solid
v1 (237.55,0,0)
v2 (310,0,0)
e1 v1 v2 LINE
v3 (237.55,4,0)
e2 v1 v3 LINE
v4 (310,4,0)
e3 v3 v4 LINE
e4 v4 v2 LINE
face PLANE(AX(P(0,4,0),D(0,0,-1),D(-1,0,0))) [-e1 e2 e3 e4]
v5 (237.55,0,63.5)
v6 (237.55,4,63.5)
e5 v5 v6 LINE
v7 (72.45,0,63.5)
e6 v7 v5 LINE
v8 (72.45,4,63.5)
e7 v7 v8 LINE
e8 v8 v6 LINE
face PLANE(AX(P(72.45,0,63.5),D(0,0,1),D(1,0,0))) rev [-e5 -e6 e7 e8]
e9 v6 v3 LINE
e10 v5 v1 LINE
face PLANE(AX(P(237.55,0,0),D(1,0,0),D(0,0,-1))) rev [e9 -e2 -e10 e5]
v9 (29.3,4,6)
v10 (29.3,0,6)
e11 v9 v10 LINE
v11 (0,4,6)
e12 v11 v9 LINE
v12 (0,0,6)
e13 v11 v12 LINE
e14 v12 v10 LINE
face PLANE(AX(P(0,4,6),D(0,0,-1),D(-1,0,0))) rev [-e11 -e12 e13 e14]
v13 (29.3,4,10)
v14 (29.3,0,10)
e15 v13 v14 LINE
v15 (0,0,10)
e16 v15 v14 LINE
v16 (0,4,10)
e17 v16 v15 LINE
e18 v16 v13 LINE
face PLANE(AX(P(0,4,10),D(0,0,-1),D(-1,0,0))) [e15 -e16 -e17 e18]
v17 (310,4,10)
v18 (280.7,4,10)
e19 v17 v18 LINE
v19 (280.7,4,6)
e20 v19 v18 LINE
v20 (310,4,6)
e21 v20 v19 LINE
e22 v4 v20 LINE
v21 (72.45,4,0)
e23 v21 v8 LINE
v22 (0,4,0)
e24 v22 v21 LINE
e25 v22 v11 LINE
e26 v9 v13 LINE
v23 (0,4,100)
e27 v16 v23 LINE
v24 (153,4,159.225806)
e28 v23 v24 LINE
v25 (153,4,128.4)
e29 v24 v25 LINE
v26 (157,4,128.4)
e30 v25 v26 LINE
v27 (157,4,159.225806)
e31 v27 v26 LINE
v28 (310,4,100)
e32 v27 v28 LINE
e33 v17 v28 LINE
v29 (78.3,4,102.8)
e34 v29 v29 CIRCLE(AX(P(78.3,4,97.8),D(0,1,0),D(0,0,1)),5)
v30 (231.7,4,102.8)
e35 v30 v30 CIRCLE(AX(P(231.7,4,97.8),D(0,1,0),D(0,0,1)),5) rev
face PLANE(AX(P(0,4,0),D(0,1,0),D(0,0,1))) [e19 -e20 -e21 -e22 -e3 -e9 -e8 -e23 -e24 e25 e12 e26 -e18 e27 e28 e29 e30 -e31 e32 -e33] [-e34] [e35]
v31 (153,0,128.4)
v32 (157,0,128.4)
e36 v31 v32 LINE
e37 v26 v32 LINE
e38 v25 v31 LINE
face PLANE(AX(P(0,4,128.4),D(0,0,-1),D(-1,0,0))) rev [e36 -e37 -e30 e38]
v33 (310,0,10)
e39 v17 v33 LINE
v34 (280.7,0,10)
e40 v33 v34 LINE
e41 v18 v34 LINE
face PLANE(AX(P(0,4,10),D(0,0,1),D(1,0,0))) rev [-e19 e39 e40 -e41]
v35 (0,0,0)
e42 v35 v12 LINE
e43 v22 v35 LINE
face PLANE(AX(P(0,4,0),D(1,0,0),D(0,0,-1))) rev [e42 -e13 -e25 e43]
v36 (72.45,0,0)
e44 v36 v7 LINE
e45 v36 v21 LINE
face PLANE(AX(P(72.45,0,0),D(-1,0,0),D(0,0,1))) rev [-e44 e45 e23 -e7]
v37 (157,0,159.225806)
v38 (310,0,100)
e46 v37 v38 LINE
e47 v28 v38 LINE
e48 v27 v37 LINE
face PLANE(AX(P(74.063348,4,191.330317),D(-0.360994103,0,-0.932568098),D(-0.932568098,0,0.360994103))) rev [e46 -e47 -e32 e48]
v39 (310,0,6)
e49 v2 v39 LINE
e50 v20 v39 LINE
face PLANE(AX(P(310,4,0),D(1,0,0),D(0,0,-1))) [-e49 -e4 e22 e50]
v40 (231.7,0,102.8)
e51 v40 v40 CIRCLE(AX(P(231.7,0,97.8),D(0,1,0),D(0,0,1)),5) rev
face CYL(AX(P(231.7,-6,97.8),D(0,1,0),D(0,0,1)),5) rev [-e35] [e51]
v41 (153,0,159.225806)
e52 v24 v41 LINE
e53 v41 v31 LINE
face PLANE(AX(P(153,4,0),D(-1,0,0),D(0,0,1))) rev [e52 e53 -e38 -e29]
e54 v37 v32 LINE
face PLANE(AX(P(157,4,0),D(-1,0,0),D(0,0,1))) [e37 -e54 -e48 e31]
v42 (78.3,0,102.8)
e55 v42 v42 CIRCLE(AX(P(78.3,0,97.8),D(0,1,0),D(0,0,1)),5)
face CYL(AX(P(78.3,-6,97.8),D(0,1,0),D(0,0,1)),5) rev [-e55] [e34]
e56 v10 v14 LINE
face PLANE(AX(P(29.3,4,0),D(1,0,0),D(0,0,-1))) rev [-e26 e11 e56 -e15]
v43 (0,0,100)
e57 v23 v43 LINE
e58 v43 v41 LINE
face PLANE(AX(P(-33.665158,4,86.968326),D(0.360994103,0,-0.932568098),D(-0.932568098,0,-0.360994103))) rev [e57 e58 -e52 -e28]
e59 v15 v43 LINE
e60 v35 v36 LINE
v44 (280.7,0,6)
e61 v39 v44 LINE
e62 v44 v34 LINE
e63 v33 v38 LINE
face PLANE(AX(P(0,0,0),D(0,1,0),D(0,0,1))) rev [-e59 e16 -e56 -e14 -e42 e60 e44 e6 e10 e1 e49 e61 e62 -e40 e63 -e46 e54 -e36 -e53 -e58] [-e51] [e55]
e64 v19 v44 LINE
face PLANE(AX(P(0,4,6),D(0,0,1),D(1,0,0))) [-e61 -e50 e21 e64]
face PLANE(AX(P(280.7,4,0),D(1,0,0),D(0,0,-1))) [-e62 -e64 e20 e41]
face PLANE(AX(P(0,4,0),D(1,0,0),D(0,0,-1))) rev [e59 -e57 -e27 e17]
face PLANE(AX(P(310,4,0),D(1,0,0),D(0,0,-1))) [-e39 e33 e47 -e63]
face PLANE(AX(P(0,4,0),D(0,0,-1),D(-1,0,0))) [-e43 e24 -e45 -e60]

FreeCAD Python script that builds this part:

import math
import FreeCAD as App
import Part
import Sketcher
from FreeCAD import Vector
Q = App.Units.Quantity

doc = App.newDocument("Part")
params = doc.addObject("Spreadsheet::Sheet", "Params")
for row, (alias, value) in enumerate([
    ("sketch1_width", "310 mm"),
    ("sketch1_width2", "4 mm"),
    ("sketch1_height", "90 mm"),
    ("sketch1_height2", "6 mm"),
    ("sketch1_width3", "29.3 mm"),
    ("pad1_length", "4 mm"),
    ("sketch2_width", "165.1 mm"),
    ("sketch2_height", "63.5 mm"),
    ("sketch3_radius", "5 mm"),
    ("pocket2_length", "10 mm"),
], start=1):
    params.set(f"A{row}", alias)
    params.set(f"B{row}", "=" + value)
    params.setAlias(f"B{row}", alias)

body = doc.addObject("PartDesign::Body", "Body")

# Sketch on XZ plane
sketch1 = doc.addObject("Sketcher::SketchObject", "Sketch")
body.addObject(sketch1)
sketch1.AttachmentSupport = (doc.XZ_Plane, [""])
sketch1.MapMode = "FlatFace"
sketch1.addGeometry(Part.LineSegment(Vector(310, 100, 0), Vector(310, 10, 0)), False)
sketch1.addGeometry(Part.LineSegment(Vector(310, 10, 0), Vector(280.7, 10, 0)), False)
sketch1.addGeometry(Part.LineSegment(Vector(280.7, 10, 0), Vector(280.7, 6, 0)), False)
sketch1.addGeometry(Part.LineSegment(Vector(280.7, 6, 0), Vector(310, 6, 0)), False)
sketch1.addGeometry(Part.LineSegment(Vector(310, 6, 0), Vector(310, 0, 0)), False)
sketch1.addGeometry(Part.LineSegment(Vector(310, 0, 0), Vector(0, 0, 0)), False)
sketch1.addGeometry(Part.LineSegment(Vector(0, 0, 0), Vector(0, 6, 0)), False)
sketch1.addGeometry(Part.LineSegment(Vector(0, 6, 0), Vector(29.3, 6, 0)), False)
sketch1.addGeometry(Part.LineSegment(Vector(29.3, 6, 0), Vector(29.3, 10, 0)), False)
sketch1.addGeometry(Part.LineSegment(Vector(29.3, 10, 0), Vector(0, 10, 0)), False)
sketch1.addGeometry(Part.LineSegment(Vector(0, 10, 0), Vector(0, 100, 0)), False)
sketch1.addGeometry(Part.LineSegment(Vector(0, 100, 0), Vector(153, 159.225806, 0)), False)
sketch1.addGeometry(Part.LineSegment(Vector(153, 159.225806, 0), Vector(153, 128.4, 0)), False)
sketch1.addGeometry(Part.LineSegment(Vector(153, 128.4, 0), Vector(157, 128.4, 0)), False)
sketch1.addGeometry(Part.LineSegment(Vector(157, 128.4, 0), Vector(157, 159.225806, 0)), False)
sketch1.addGeometry(Part.LineSegment(Vector(157, 159.225806, 0), Vector(310, 100, 0)), False)
sketch1.addConstraint(Sketcher.Constraint("Coincident", 0, 2, 1, 1))
sketch1.addConstraint(Sketcher.Constraint("Coincident", 1, 2, 2, 1))
sketch1.addConstraint(Sketcher.Constraint("Coincident", 2, 2, 3, 1))
sketch1.addConstraint(Sketcher.Constraint("Coincident", 3, 2, 4, 1))
sketch1.addConstraint(Sketcher.Constraint("Coincident", 4, 2, 5, 1))
sketch1.addConstraint(Sketcher.Constraint("Coincident", 5, 2, 6, 1))
sketch1.addConstraint(Sketcher.Constraint("Coincident", 6, 2, 7, 1))
sketch1.addConstraint(Sketcher.Constraint("Coincident", 7, 2, 8, 1))
sketch1.addConstraint(Sketcher.Constraint("Coincident", 8, 2, 9, 1))
sketch1.addConstraint(Sketcher.Constraint("Coincident", 9, 2, 10, 1))
sketch1.addConstraint(Sketcher.Constraint("Coincident", 10, 2, 11, 1))
sketch1.addConstraint(Sketcher.Constraint("Coincident", 11, 2, 12, 1))
sketch1.addConstraint(Sketcher.Constraint("Coincident", 12, 2, 13, 1))
sketch1.addConstraint(Sketcher.Constraint("Coincident", 13, 2, 14, 1))
sketch1.addConstraint(Sketcher.Constraint("Coincident", 14, 2, 15, 1))
sketch1.addConstraint(Sketcher.Constraint("Coincident", 15, 2, 0, 1))
sketch1.addConstraint(Sketcher.Constraint("Vertical", 0))
sketch1.addConstraint(Sketcher.Constraint("Horizontal", 1))
sketch1.addConstraint(Sketcher.Constraint("Vertical", 2))
sketch1.addConstraint(Sketcher.Constraint("Horizontal", 3))
sketch1.addConstraint(Sketcher.Constraint("Vertical", 4))
sketch1.addConstraint(Sketcher.Constraint("Horizontal", 5))
sketch1.addConstraint(Sketcher.Constraint("Vertical", 6))
sketch1.addConstraint(Sketcher.Constraint("Horizontal", 7))
sketch1.addConstraint(Sketcher.Constraint("Vertical", 8))
sketch1.addConstraint(Sketcher.Constraint("Horizontal", 9))
sketch1.addConstraint(Sketcher.Constraint("Vertical", 10))
sketch1.addConstraint(Sketcher.Constraint("Vertical", 12))
sketch1.addConstraint(Sketcher.Constraint("Horizontal", 13))
sketch1.addConstraint(Sketcher.Constraint("Vertical", 14))
sketch1.addConstraint(Sketcher.Constraint("Coincident", 5, 2, -1, 1))
sketch1.addConstraint(Sketcher.Constraint("PointOnObject", 9, 2, -2))
sketch1.addConstraint(Sketcher.Constraint("Horizontal", 3, 2, 6, 2))
sketch1.addConstraint(Sketcher.Constraint("Horizontal", 1, 2, 8, 2))
sketch1.addConstraint(Sketcher.Constraint("Horizontal", 11, 2, 14, 2))
sketch1.addConstraint(Sketcher.Constraint("Horizontal", 10, 2, 15, 2))
sketch1.addConstraint(Sketcher.Constraint("Vertical", 0, 2, 3, 2))
sketch1.addConstraint(Sketcher.Constraint("Equal", 3, 7))
sketch1.addConstraint(Sketcher.Constraint("Equal", 13, 2))
sketch1.addConstraint(Sketcher.Constraint("Equal", 11, 15))
sketch1.addConstraint(Sketcher.Constraint("DistanceX", 5, 2, 5, 1, Q("310 mm")))
sketch1.addConstraint(Sketcher.Constraint("DistanceX", 13, 1, 13, 2, Q("4 mm")))
sketch1.addConstraint(Sketcher.Constraint("DistanceY", 0, 2, 0, 1, Q("90 mm")))
sketch1.addConstraint(Sketcher.Constraint("DistanceY", 4, 2, 4, 1, Q("6 mm")))
sketch1.addConstraint(Sketcher.Constraint("DistanceX", 1, 2, 1, 1, Q("29.3 mm")))
sketch1.addConstraint(Sketcher.Constraint("DistanceY", -1, 1, 12, 2, Q("128.4 mm")))
sketch1.addConstraint(Sketcher.Constraint("DistanceY", 12, 2, 12, 1, Q("30.825806 mm")))
sketch1.setExpression("Constraints[40]", "Params.sketch1_width")
sketch1.setExpression("Constraints[41]", "Params.sketch1_width2")
sketch1.setExpression("Constraints[42]", "Params.sketch1_height")
sketch1.setExpression("Constraints[43]", "Params.sketch1_height2")
sketch1.setExpression("Constraints[44]", "Params.sketch1_width3")
pad1 = doc.addObject("PartDesign::Pad", "Pad")
body.addObject(pad1)
pad1.Profile = sketch1
pad1.setExpression("Length", "Params.pad1_length")
pad1.Reversed = True

# Sketch on XZ plane
sketch2 = doc.addObject("Sketcher::SketchObject", "Sketch001")
body.addObject(sketch2)
sketch2.AttachmentSupport = (doc.XZ_Plane, [""])
sketch2.MapMode = "FlatFace"
sketch2.AttachmentOffset = App.Placement(Vector(0, 0, -4), App.Rotation())
sketch2.addGeometry(Part.LineSegment(Vector(72.45, 0, 0), Vector(72.45, 63.5, 0)), False)
sketch2.addGeometry(Part.LineSegment(Vector(72.45, 63.5, 0), Vector(237.55, 63.5, 0)), False)
sketch2.addGeometry(Part.LineSegment(Vector(237.55, 63.5, 0), Vector(237.55, 0, 0)), False)
sketch2.addGeometry(Part.LineSegment(Vector(237.55, 0, 0), Vector(72.45, 0, 0)), False)
sketch2.addConstraint(Sketcher.Constraint("Coincident", 0, 2, 1, 1))
sketch2.addConstraint(Sketcher.Constraint("Coincident", 1, 2, 2, 1))
sketch2.addConstraint(Sketcher.Constraint("Coincident", 2, 2, 3, 1))
sketch2.addConstraint(Sketcher.Constraint("Coincident", 3, 2, 0, 1))
sketch2.addConstraint(Sketcher.Constraint("Vertical", 0))
sketch2.addConstraint(Sketcher.Constraint("Horizontal", 1))
sketch2.addConstraint(Sketcher.Constraint("Vertical", 2))
sketch2.addConstraint(Sketcher.Constraint("Horizontal", 3))
sketch2.addConstraint(Sketcher.Constraint("PointOnObject", 2, 2, -1))
sketch2.addConstraint(Sketcher.Constraint("DistanceX", 1, 1, 1, 2, Q("165.1 mm")))
sketch2.addConstraint(Sketcher.Constraint("DistanceY", 0, 1, 0, 2, Q("63.5 mm")))
sketch2.addConstraint(Sketcher.Constraint("DistanceX", -1, 1, 0, 2, Q("72.45 mm")))
sketch2.setExpression("Constraints[9]", "Params.sketch2_width")
sketch2.setExpression("Constraints[10]", "Params.sketch2_height")
pocket1 = doc.addObject("PartDesign::Pocket", "Pocket")
body.addObject(pocket1)
pocket1.Profile = sketch2
pocket1.Type = "ThroughAll"
pocket1.Reversed = True

# Sketch on XZ plane
sketch3 = doc.addObject("Sketcher::SketchObject", "Sketch002")
body.addObject(sketch3)
sketch3.AttachmentSupport = (doc.XZ_Plane, [""])
sketch3.MapMode = "FlatFace"
sketch3.AttachmentOffset = App.Placement(Vector(0, 0, -4), App.Rotation())
sketch3.addGeometry(Part.ArcOfCircle(Part.Circle(Vector(78.3, 97.8, 0), Vector(0, 0, 1), 5), math.radians(153.896119), math.radians(180)), False)
sketch3.addGeometry(Part.ArcOfCircle(Part.Circle(Vector(78.3, 97.8, 0), Vector(0, 0, 1), 5), math.radians(0), math.radians(153.896119)), False)
sketch3.addGeometry(Part.ArcOfCircle(Part.Circle(Vector(78.3, 97.8, 0), Vector(0, 0, 1), 5), math.radians(180), math.radians(360)), False)
sketch3.addGeometry(Part.ArcOfCircle(Part.Circle(Vector(231.7, 97.8, 0), Vector(0, 0, 1), 5), math.radians(26.103881), math.radians(360)), False)
sketch3.addGeometry(Part.ArcOfCircle(Part.Circle(Vector(231.7, 97.8, 0), Vector(0, 0, 1), 5), math.radians(0), math.radians(26.103881)), False)
sketch3.addConstraint(Sketcher.Constraint("Tangent", 0, 1, 1, 2))
sketch3.addConstraint(Sketcher.Constraint("Tangent", 1, 1, 2, 2))
sketch3.addConstraint(Sketcher.Constraint("Tangent", 2, 1, 0, 2))
sketch3.addConstraint(Sketcher.Constraint("Tangent", 3, 1, 4, 2))
sketch3.addConstraint(Sketcher.Constraint("Coincident", 4, 1, 3, 2))
sketch3.addConstraint(Sketcher.Constraint("Equal", 2, 3))
sketch3.addConstraint(Sketcher.Constraint("Horizontal", 2, 3, 3, 3))
sketch3.addConstraint(Sketcher.Constraint("Horizontal", 4, 3, 1, 1))
sketch3.addConstraint(Sketcher.Constraint("Horizontal", 1, 1, 2, 1))
sketch3.addConstraint(Sketcher.Constraint("Horizontal", 0, 1, 3, 1))
sketch3.addConstraint(Sketcher.Constraint("Horizontal", 2, 1, 4, 1))
sketch3.addConstraint(Sketcher.Constraint("Radius", 0, Q("5 mm")))
sketch3.addConstraint(Sketcher.Constraint("DistanceY", -1, 1, 0, 1, Q("100 mm")))
sketch3.addConstraint(Sketcher.Constraint("DistanceX", -1, 1, 0, 3, Q("78.3 mm")))
sketch3.addConstraint(Sketcher.Constraint("DistanceY", -1, 1, 0, 3, Q("97.8 mm")))
sketch3.addConstraint(Sketcher.Constraint("DistanceX", -1, 1, 3, 3, Q("231.7 mm")))
sketch3.setExpression("Constraints[11]", "Params.sketch3_radius")
pocket2 = doc.addObject("PartDesign::Pocket", "Pocket001")
body.addObject(pocket2)
pocket2.Profile = sketch3
pocket2.setExpression("Length", "Params.pocket2_length")
pocket2.Reversed = True

doc.recompute()
